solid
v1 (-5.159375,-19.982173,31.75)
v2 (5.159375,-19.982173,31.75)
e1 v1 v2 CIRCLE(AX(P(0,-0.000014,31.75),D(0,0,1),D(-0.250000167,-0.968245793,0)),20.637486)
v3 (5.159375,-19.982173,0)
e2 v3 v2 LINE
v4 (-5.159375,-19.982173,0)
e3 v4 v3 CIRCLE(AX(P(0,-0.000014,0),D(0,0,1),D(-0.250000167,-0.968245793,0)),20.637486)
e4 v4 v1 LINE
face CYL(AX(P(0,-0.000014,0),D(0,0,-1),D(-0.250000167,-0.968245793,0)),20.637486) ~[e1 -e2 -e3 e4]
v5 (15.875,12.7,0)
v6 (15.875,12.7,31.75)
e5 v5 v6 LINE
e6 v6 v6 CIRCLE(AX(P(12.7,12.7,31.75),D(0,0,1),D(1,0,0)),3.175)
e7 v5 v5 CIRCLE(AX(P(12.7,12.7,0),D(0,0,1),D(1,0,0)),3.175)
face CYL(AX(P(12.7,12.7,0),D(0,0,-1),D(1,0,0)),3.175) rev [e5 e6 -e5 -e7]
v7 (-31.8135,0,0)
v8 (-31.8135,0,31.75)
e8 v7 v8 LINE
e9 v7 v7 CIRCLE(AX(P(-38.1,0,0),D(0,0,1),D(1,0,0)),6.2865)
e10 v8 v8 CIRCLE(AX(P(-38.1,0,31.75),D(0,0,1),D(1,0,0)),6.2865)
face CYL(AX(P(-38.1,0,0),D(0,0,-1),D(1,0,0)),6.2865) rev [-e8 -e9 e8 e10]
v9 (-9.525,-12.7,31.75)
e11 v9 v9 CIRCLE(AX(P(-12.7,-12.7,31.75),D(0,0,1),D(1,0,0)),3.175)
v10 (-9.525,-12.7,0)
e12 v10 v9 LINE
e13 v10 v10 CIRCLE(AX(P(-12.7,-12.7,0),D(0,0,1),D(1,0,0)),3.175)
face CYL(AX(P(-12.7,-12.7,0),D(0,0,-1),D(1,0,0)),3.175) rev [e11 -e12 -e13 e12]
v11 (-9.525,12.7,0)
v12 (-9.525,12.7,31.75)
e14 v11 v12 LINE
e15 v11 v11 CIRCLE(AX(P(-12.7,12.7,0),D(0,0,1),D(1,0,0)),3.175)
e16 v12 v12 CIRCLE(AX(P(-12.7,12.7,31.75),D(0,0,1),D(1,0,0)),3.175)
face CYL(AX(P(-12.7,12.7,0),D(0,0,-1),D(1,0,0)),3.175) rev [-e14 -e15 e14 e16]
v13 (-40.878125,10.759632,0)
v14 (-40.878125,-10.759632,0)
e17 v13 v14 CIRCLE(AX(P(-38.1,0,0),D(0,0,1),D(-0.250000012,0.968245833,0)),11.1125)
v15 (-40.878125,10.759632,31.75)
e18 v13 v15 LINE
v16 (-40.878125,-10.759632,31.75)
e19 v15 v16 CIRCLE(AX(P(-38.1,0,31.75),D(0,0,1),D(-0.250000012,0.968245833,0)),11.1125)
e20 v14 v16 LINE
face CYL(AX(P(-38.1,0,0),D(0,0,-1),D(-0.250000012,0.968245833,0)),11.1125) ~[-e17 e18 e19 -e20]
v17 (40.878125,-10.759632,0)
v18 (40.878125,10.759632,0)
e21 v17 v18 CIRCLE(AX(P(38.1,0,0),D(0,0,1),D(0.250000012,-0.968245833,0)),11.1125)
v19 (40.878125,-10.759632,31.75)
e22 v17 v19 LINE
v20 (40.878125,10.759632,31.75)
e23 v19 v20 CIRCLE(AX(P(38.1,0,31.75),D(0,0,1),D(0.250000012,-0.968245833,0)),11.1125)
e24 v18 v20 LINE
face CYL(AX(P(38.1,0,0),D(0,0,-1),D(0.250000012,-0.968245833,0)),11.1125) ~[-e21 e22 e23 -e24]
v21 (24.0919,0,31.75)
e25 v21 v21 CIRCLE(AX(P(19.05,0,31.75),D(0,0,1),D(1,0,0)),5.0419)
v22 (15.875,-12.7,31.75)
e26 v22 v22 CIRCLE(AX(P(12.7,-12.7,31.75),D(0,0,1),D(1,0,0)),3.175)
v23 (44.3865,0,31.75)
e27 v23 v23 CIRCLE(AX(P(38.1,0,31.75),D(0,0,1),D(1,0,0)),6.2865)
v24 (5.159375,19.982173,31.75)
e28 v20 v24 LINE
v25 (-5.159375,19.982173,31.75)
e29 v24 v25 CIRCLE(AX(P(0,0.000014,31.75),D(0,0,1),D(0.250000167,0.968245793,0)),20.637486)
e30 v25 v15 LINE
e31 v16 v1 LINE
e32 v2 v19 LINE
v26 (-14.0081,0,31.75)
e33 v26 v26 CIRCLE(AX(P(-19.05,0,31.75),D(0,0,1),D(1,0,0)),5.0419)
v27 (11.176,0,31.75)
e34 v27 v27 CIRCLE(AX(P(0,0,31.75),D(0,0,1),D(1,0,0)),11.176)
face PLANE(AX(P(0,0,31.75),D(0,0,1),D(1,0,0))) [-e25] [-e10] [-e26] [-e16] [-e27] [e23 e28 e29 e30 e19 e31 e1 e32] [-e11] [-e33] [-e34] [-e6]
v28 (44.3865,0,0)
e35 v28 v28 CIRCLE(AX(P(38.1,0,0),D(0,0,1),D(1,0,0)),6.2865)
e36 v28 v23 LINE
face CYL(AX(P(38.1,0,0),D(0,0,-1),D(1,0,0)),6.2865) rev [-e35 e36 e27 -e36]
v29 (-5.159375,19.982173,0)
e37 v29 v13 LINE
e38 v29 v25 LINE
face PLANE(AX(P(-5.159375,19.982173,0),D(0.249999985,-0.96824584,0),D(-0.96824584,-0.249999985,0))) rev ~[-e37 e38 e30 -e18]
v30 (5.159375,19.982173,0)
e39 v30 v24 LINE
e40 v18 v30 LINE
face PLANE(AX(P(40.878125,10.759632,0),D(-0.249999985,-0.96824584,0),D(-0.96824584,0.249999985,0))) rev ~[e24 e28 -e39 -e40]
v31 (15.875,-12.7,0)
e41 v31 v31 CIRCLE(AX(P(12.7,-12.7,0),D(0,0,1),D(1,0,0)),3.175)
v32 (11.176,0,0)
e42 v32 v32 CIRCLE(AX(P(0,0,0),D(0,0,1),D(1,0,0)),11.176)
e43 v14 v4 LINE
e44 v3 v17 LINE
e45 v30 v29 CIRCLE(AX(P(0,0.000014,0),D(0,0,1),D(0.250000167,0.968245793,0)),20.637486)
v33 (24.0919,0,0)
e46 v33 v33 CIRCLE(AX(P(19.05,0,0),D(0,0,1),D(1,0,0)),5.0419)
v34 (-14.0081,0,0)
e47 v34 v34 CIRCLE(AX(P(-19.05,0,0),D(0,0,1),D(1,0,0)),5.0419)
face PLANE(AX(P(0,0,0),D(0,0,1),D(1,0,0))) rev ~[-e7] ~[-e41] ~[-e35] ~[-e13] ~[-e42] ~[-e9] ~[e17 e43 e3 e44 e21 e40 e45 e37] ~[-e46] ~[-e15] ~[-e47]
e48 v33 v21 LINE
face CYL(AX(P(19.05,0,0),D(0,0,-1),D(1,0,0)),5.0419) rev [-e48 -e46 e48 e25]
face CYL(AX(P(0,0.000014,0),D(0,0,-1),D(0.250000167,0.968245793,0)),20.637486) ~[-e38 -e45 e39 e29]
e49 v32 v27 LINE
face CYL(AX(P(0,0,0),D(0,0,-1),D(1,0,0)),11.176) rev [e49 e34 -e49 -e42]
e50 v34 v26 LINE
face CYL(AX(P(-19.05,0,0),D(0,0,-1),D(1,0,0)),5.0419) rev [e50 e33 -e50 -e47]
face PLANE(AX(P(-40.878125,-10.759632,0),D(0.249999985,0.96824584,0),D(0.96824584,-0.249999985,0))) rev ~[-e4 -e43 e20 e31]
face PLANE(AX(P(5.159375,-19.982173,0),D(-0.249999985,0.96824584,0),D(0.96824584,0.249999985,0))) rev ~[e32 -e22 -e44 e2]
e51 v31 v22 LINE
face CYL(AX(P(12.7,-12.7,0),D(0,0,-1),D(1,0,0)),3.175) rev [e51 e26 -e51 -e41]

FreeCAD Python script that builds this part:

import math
import FreeCAD as App
import Part
import Sketcher
Q = App.Units.Quantity

doc = App.newDocument("Part")
body = doc.addObject("PartDesign::Body", "Body")

sketch1 = body.newObject("Sketcher::SketchObject", "Sketch")
sketch1.AttachmentSupport = (doc.getObject("XY_Plane"), [""])
sketch1.MapMode = "FlatFace"
sketch1.addGeometry(Part.LineSegment(App.Vector(-5.2, 20, 0), App.Vector(-40.9, 10.8, 0)), False)
sketch1.addGeometry(Part.ArcOfCircle(Part.Circle(App.Vector(-38.1, 0, 0), App.Vector(0, 0, 1), 11.1), math.radians(104), math.radians(256)), False)
sketch1.addGeometry(Part.LineSegment(App.Vector(-40.9, -10.8, 0), App.Vector(-5.2, -20, 0)), False)
sketch1.addGeometry(Part.ArcOfCircle(Part.Circle(App.Vector(0, 0, 0), App.Vector(0, 0, 1), 20.6), math.radians(-104), math.radians(-76)), False)
sketch1.addGeometry(Part.LineSegment(App.Vector(5.2, -20, 0), App.Vector(40.9, -10.8, 0)), False)
sketch1.addGeometry(Part.ArcOfCircle(Part.Circle(App.Vector(38.1, 0, 0), App.Vector(0, 0, 1), 11.1), math.radians(-76), math.radians(76)), False)
sketch1.addGeometry(Part.LineSegment(App.Vector(40.9, 10.8, 0), App.Vector(5.2, 20, 0)), False)
sketch1.addGeometry(Part.ArcOfCircle(Part.Circle(App.Vector(0, 0, 0), App.Vector(0, 0, 1), 20.6), math.radians(76), math.radians(104)), False)
sketch1.addGeometry(Part.Circle(App.Vector(-12.7, -12.7, 0), App.Vector(0, 0, 1), 3.2), False)
sketch1.addGeometry(Part.Circle(App.Vector(12.7, -12.7, 0), App.Vector(0, 0, 1), 3.2), False)
sketch1.addGeometry(Part.Circle(App.Vector(-38.1, 0, 0), App.Vector(0, 0, 1), 6.3), False)
sketch1.addGeometry(Part.Circle(App.Vector(-19.1, 0, 0), App.Vector(0, 0, 1), 5), False)
sketch1.addGeometry(Part.Circle(App.Vector(-12.7, 12.7, 0), App.Vector(0, 0, 1), 3.2), False)
sketch1.addGeometry(Part.Circle(App.Vector(0, 0, 0), App.Vector(0, 0, 1), 11.2), False)
sketch1.addGeometry(Part.Circle(App.Vector(19.1, 0, 0), App.Vector(0, 0, 1), 5), False)
sketch1.addGeometry(Part.Circle(App.Vector(38.1, 0, 0), App.Vector(0, 0, 1), 6.3), False)
sketch1.addGeometry(Part.Circle(App.Vector(12.7, 12.7, 0), App.Vector(0, 0, 1), 3.2), False)
sketch1.addConstraint(Sketcher.Constraint("Tangent", 0, 2, 1, 1))
sketch1.addConstraint(Sketcher.Constraint("Tangent", 1, 2, 2, 1))
sketch1.addConstraint(Sketcher.Constraint("Tangent", 2, 2, 3, 1))
sketch1.addConstraint(Sketcher.Constraint("Tangent", 3, 2, 4, 1))
sketch1.addConstraint(Sketcher.Constraint("Tangent", 4, 2, 5, 1))
sketch1.addConstraint(Sketcher.Constraint("Tangent", 5, 2, 6, 1))
sketch1.addConstraint(Sketcher.Constraint("Tangent", 6, 2, 7, 1))
sketch1.addConstraint(Sketcher.Constraint("Tangent", 7, 2, 0, 1))
sketch1.addConstraint(Sketcher.Constraint("Coincident", 13, 3, -1, 1))
sketch1.addConstraint(Sketcher.Constraint("Coincident", 10, 3, 1, 3))
sketch1.addConstraint(Sketcher.Constraint("Coincident", 15, 3, 5, 3))
sketch1.addConstraint(Sketcher.Constraint("Equal", 1, 5))
sketch1.addConstraint(Sketcher.Constraint("Equal", 3, 7))
sketch1.addConstraint(Sketcher.Constraint("Equal", 8, 9))
sketch1.addConstraint(Sketcher.Constraint("Equal", 9, 12))
sketch1.addConstraint(Sketcher.Constraint("Equal", 11, 14))
sketch1.addConstraint(Sketcher.Constraint("Equal", 10, 15))
sketch1.addConstraint(Sketcher.Constraint("Equal", 12, 16))
sketch1.addConstraint(Sketcher.Constraint("Symmetric", 1, 3, 5, 3, -1, 1))
sketch1.addConstraint(Sketcher.Constraint("Symmetric", 3, 3, 7, 3, -1, 1))
sketch1.addConstraint(Sketcher.Constraint("Symmetric", 9, 3, 12, 3, -1, 1))
sketch1.addConstraint(Sketcher.Constraint("Symmetric", 11, 3, 14, 3, -1, 1))
sketch1.addConstraint(Sketcher.Constraint("Symmetric", 8, 3, 16, 3, -1, 1))
sketch1.addConstraint(Sketcher.Constraint("Symmetric", 8, 3, 9, 3, -2))
sketch1.addConstraint(Sketcher.Constraint("Symmetric", 2, 2, 3, 2, -2))
sketch1.addConstraint(Sketcher.Constraint("PointOnObject", 11, 3, -1))
sketch1.addConstraint(Sketcher.Constraint("Diameter", 8, Q("0.25 in")))
sketch1.addConstraint(Sketcher.Constraint("Diameter", 13, Q("0.88 in")))
sketch1.addConstraint(Sketcher.Constraint("Diameter", 10, Q("0.495 in")))
sketch1.addConstraint(Sketcher.Constraint("Diameter", 11, Q("0.397 in")))
sketch1.addConstraint(Sketcher.Constraint("Radius", 1, Q("0.4375 in")))
sketch1.addConstraint(Sketcher.Constraint("DistanceX", 1, 3, 5, 3, Q("3 in")))
sketch1.addConstraint(Sketcher.Constraint("DistanceX", 1, 3, 8, 3, Q("1 in")))
sketch1.addConstraint(Sketcher.Constraint("DistanceY", 8, 3, 12, 3, Q("1 in")))
sketch1.addConstraint(Sketcher.Constraint("DistanceX", 11, 3, -1, 1, Q("0.75 in")))
sketch1.addConstraint(Sketcher.Constraint("DistanceX", 0, 2, -1, 1, Q("1.609375 in")))
sketch1.addConstraint(Sketcher.Constraint("DistanceX", 2, 2, -1, 1, Q("0.203125 in")))
pad1 = body.newObject("PartDesign::Pad", "Pad")
pad1.Profile = sketch1
pad1.Length = Q("1.25 in")

doc.recompute()
